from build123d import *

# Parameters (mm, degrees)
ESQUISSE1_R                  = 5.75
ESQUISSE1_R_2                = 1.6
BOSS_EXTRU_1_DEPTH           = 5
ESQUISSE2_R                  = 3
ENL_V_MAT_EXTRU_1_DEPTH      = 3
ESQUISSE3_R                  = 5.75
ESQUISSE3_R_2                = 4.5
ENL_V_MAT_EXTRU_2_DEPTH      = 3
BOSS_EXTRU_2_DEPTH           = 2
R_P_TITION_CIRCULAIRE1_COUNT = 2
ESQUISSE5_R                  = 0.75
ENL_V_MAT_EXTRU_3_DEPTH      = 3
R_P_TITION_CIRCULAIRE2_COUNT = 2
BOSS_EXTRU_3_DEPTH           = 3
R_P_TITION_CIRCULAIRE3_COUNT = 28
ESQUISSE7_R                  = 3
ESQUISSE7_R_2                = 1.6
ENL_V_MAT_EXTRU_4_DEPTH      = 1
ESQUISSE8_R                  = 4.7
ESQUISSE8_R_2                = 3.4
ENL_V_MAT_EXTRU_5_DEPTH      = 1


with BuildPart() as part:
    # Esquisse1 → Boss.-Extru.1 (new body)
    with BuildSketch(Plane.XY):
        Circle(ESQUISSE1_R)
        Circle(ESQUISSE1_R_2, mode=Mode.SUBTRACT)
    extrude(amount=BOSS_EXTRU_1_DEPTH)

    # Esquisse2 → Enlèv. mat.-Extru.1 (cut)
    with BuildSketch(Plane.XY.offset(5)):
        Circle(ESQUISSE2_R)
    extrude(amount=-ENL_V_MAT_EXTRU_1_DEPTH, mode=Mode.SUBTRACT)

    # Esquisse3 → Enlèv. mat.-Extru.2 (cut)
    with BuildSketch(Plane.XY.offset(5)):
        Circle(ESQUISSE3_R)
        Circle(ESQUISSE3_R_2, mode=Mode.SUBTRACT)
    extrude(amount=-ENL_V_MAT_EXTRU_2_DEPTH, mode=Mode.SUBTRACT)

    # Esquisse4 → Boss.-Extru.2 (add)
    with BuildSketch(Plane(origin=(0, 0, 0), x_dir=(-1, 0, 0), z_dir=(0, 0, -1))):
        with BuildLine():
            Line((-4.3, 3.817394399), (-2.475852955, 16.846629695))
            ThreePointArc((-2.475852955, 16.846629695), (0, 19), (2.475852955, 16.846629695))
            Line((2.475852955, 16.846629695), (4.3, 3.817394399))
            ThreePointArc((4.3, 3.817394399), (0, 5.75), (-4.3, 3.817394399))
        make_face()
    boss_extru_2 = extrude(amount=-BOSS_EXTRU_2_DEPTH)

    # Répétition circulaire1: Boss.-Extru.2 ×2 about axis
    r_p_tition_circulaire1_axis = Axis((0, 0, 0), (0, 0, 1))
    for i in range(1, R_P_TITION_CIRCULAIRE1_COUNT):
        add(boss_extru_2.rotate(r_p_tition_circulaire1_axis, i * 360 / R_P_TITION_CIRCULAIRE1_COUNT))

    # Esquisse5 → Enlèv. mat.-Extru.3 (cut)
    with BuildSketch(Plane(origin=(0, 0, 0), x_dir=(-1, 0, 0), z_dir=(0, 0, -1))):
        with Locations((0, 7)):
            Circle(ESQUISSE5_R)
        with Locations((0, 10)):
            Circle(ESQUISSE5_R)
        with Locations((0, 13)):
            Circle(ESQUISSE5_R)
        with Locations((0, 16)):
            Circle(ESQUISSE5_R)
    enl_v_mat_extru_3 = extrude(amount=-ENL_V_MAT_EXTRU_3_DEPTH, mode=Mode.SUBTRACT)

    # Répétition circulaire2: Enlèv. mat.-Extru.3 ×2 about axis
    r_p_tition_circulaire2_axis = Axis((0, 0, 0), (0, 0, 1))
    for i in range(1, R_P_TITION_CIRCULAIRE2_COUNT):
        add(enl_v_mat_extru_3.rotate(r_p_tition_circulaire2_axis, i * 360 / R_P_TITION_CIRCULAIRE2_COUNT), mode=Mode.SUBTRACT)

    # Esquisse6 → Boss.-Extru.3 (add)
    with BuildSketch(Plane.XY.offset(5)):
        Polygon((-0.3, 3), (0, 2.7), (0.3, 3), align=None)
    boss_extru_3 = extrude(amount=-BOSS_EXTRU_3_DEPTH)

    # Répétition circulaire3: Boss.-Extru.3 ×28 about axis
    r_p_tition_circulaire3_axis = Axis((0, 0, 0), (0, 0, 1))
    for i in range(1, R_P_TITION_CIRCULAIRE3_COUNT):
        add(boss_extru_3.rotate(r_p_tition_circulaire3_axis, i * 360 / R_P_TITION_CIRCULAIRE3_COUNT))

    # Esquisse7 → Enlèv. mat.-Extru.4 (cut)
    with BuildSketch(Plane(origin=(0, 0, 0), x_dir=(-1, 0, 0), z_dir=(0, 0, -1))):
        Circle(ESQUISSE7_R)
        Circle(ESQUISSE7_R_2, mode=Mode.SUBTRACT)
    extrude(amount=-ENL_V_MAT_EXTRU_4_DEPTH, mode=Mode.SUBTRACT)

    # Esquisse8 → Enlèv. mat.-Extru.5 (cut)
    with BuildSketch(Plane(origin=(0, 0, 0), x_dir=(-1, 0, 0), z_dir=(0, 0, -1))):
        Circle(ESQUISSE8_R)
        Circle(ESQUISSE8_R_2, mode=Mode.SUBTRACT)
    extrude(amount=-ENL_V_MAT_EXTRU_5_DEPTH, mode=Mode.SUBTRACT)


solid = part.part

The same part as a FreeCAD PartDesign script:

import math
import FreeCAD as App
import Part
import Sketcher
from FreeCAD import Vector
Q = App.Units.Quantity

doc = App.newDocument("Part")
body = doc.addObject("PartDesign::Body", "Body")

# Sketch on XY plane
sketch1 = doc.addObject("Sketcher::SketchObject", "Sketch")
body.addObject(sketch1)
sketch1.AttachmentSupport = (doc.XY_Plane, [""])
sketch1.MapMode = "FlatFace"
sketch1.addGeometry([
    Part.Circle(Vector(0, 0, 0), Vector(0, 0, 1), 5.8),
    Part.Circle(Vector(0, 0, 0), Vector(0, 0, 1), 1.6),
], False)
sketch1.addConstraint([
    Sketcher.Constraint("Coincident", 0, 3, -1, 1),
    Sketcher.Constraint("Coincident", 1, 3, -1, 1),
    Sketcher.Constraint("Diameter", 0, Q("11.5 mm")),
    Sketcher.Constraint("Diameter", 1, Q("3.2 mm")),
])
pad1 = doc.addObject("PartDesign::Pad", "Pad")
body.addObject(pad1)
pad1.Profile = sketch1
pad1.Length = 5

# Sketch on XY plane
sketch2 = doc.addObject("Sketcher::SketchObject", "Sketch001")
body.addObject(sketch2)
sketch2.AttachmentSupport = (doc.XY_Plane, [""])
sketch2.MapMode = "FlatFace"
sketch2.AttachmentOffset = App.Placement(Vector(0, 0, 5), App.Rotation())
sketch2.addGeometry(Part.Circle(Vector(0, 0, 0), Vector(0, 0, 1), 3), False)
sketch2.addConstraint([
    Sketcher.Constraint("Coincident", 0, 3, -1, 1),
    Sketcher.Constraint("Diameter", 0, Q("6 mm")),
])
pocket1 = doc.addObject("PartDesign::Pocket", "Pocket")
body.addObject(pocket1)
pocket1.Profile = sketch2
pocket1.Length = 3

# Sketch on XY plane
sketch3 = doc.addObject("Sketcher::SketchObject", "Sketch002")
body.addObject(sketch3)
sketch3.AttachmentSupport = (doc.XY_Plane, [""])
sketch3.MapMode = "FlatFace"
sketch3.AttachmentOffset = App.Placement(Vector(0, 0, 5), App.Rotation())
sketch3.addGeometry([
    Part.Circle(Vector(0, 0, 0), Vector(0, 0, 1), 5.8),
    Part.Circle(Vector(0, 0, 0), Vector(0, 0, 1), 4.5),
], False)
sketch3.addConstraint([
    Sketcher.Constraint("Coincident", 0, 3, -1, 1),
    Sketcher.Constraint("Coincident", 1, 3, -1, 1),
    Sketcher.Constraint("Diameter", 1, Q("9 mm")),
    Sketcher.Constraint("Diameter", 0, Q("11.5 mm")),
])
pocket2 = doc.addObject("PartDesign::Pocket", "Pocket001")
body.addObject(pocket2)
pocket2.Profile = sketch3
pocket2.Length = 3

# Sketch on XY plane
sketch4 = doc.addObject("Sketcher::SketchObject", "Sketch003")
body.addObject(sketch4)
sketch4.AttachmentSupport = (doc.XY_Plane, [""])
sketch4.MapMode = "FlatFace"
sketch4.addGeometry([
    Part.LineSegment(Vector(2.5, 16.8, 0), Vector(4.3, 3.8, 0)),
    Part.ArcOfCircle(Part.Circle(Vector(0, 0, 0), Vector(0, 0, 1), 5.7), math.radians(42), math.radians(138)),
    Part.LineSegment(Vector(-4.3, 3.8, 0), Vector(-2.5, 16.8, 0)),
    Part.ArcOfCircle(Part.Circle(Vector(0, 16.5, 0), Vector(0, 0, 1), 2.5), math.radians(8), math.radians(172)),
], False)
sketch4.addConstraint([
    Sketcher.Constraint("Coincident", 0, 2, 1, 1),
    Sketcher.Constraint("Coincident", 1, 2, 2, 1),
    Sketcher.Constraint("Tangent", 2, 2, 3, 2),
    Sketcher.Constraint("Tangent", 3, 1, 0, 1),
    Sketcher.Constraint("Coincident", 1, 3, -1, 1),
    Sketcher.Constraint("Symmetric", 2, 2, 3, 1, -2),
    Sketcher.Constraint("Radius", 3, Q("2.5 mm")),
    Sketcher.Constraint("Radius", 1, Q("5.75 mm")),
    Sketcher.Constraint("DistanceY", -1, 1, 3, 3, Q("16.5 mm")),
    Sketcher.Constraint("DistanceX", -1, 1, 0, 2, Q("4.3 mm")),
])
pad2 = doc.addObject("PartDesign::Pad", "Pad001")
body.addObject(pad2)
pad2.Profile = sketch4
pad2.Length = 2
doc.recompute()

polarpattern = doc.addObject("PartDesign::PolarPattern", "PolarPattern")
body.addObject(polarpattern)
polarpattern.Originals = [pad2]
polarpattern.Axis = (doc.Z_Axis, [""])
polarpattern.Angle = 360
polarpattern.Occurrences = 2
body.Tip = polarpattern

# Sketch on XY plane
sketch5 = doc.addObject("Sketcher::SketchObject", "Sketch004")
body.addObject(sketch5)
sketch5.AttachmentSupport = (doc.XY_Plane, [""])
sketch5.MapMode = "FlatFace"
sketch5.addGeometry([
    Part.Circle(Vector(0, 7, 0), Vector(0, 0, 1), 0.8),
    Part.Circle(Vector(0, 10, 0), Vector(0, 0, 1), 0.8),
    Part.Circle(Vector(0, 13, 0), Vector(0, 0, 1), 0.8),
    Part.Circle(Vector(0, 16, 0), Vector(0, 0, 1), 0.8),
], False)
sketch5.addConstraint([
    Sketcher.Constraint("Equal", 0, 1),
    Sketcher.Constraint("Equal", 1, 2),
    Sketcher.Constraint("Equal", 2, 3),
    Sketcher.Constraint("PointOnObject", 0, 3, -2),
    Sketcher.Constraint("PointOnObject", 1, 3, -2),
    Sketcher.Constraint("PointOnObject", 2, 3, -2),
    Sketcher.Constraint("PointOnObject", 3, 3, -2),
    Sketcher.Constraint("Diameter", 0, Q("1.5 mm")),
    Sketcher.Constraint("DistanceY", -1, 1, 0, 3, Q("7 mm")),
    Sketcher.Constraint("DistanceY", -1, 1, 1, 3, Q("10 mm")),
    Sketcher.Constraint("DistanceY", -1, 1, 2, 3, Q("13 mm")),
    Sketcher.Constraint("DistanceY", -1, 1, 3, 3, Q("16 mm")),
])
pocket3 = doc.addObject("PartDesign::Pocket", "Pocket002")
body.addObject(pocket3)
pocket3.Profile = sketch5
pocket3.Length = 3
pocket3.Reversed = True
doc.recompute()

polarpattern2 = doc.addObject("PartDesign::PolarPattern", "PolarPattern001")
body.addObject(polarpattern2)
polarpattern2.Originals = [pocket3]
polarpattern2.Axis = (doc.Z_Axis, [""])
polarpattern2.Angle = 360
polarpattern2.Occurrences = 2
body.Tip = polarpattern2

# Sketch on XY plane
sketch6 = doc.addObject("Sketcher::SketchObject", "Sketch005")
body.addObject(sketch6)
sketch6.AttachmentSupport = (doc.XY_Plane, [""])
sketch6.MapMode = "FlatFace"
sketch6.AttachmentOffset = App.Placement(Vector(0, 0, 5), App.Rotation())
sketch6.addGeometry([
    Part.LineSegment(Vector(-0.3, 3, 0), Vector(0, 2.7, 0)),
    Part.LineSegment(Vector(0, 2.7, 0), Vector(0.3, 3, 0)),
    Part.LineSegment(Vector(0.3, 3, 0), Vector(-0.3, 3, 0)),
], False)
sketch6.addConstraint([
    Sketcher.Constraint("Coincident", 0, 2, 1, 1),
    Sketcher.Constraint("Coincident", 1, 2, 2, 1),
    Sketcher.Constraint("Coincident", 2, 2, 0, 1),
    Sketcher.Constraint("Horizontal", 2),
    Sketcher.Constraint("PointOnObject", 0, 2, -2),
    Sketcher.Constraint("Perpendicular", 0, 1),
    Sketcher.Constraint("Equal", 0, 1),
    Sketcher.Constraint("DistanceX", 2, 2, 2, 1, Q("0.6 mm")),
    Sketcher.Constraint("DistanceY", -1, 1, 1, 2, Q("3 mm")),
])
pad3 = doc.addObject("PartDesign::Pad", "Pad002")
body.addObject(pad3)
pad3.Profile = sketch6
pad3.Length = 3
pad3.Reversed = True
doc.recompute()

polarpattern3 = doc.addObject("PartDesign::PolarPattern", "PolarPattern002")
body.addObject(polarpattern3)
polarpattern3.Originals = [pad3]
polarpattern3.Axis = (doc.Z_Axis, [""])
polarpattern3.Angle = 360
polarpattern3.Occurrences = 28
body.Tip = polarpattern3

# Sketch on XY plane
sketch7 = doc.addObject("Sketcher::SketchObject", "Sketch006")
body.addObject(sketch7)
sketch7.AttachmentSupport = (doc.XY_Plane, [""])
sketch7.MapMode = "FlatFace"
sketch7.addGeometry([
    Part.Circle(Vector(0, 0, 0), Vector(0, 0, 1), 3),
    Part.Circle(Vector(0, 0, 0), Vector(0, 0, 1), 1.6),
], False)
sketch7.addConstraint([
    Sketcher.Constraint("Coincident", 0, 3, -1, 1),
    Sketcher.Constraint("Coincident", 1, 3, -1, 1),
    Sketcher.Constraint("Diameter", 0, Q("6 mm")),
    Sketcher.Constraint("Diameter", 1, Q("3.2 mm")),
])
pocket4 = doc.addObject("PartDesign::Pocket", "Pocket003")
body.addObject(pocket4)
pocket4.Profile = sketch7
pocket4.Length = 1
pocket4.Reversed = True

# Sketch on XY plane
sketch8 = doc.addObject("Sketcher::SketchObject", "Sketch007")
body.addObject(sketch8)
sketch8.AttachmentSupport = (doc.XY_Plane, [""])
sketch8.MapMode = "FlatFace"
sketch8.addGeometry([
    Part.Circle(Vector(0, 0, 0), Vector(0, 0, 1), 4.7),
    Part.Circle(Vector(0, 0, 0), Vector(0, 0, 1), 3.4),
], False)
sketch8.addConstraint([
    Sketcher.Constraint("Coincident", 0, 3, -1, 1),
    Sketcher.Constraint("Coincident", 1, 3, -1, 1),
    Sketcher.Constraint("Diameter", 0, Q("9.4 mm")),
    Sketcher.Constraint("Diameter", 1, Q("6.8 mm")),
])
pocket5 = doc.addObject("PartDesign::Pocket", "Pocket004")
body.addObject(pocket5)
pocket5.Profile = sketch8
pocket5.Length = 1
pocket5.Reversed = True

doc.recompute()
